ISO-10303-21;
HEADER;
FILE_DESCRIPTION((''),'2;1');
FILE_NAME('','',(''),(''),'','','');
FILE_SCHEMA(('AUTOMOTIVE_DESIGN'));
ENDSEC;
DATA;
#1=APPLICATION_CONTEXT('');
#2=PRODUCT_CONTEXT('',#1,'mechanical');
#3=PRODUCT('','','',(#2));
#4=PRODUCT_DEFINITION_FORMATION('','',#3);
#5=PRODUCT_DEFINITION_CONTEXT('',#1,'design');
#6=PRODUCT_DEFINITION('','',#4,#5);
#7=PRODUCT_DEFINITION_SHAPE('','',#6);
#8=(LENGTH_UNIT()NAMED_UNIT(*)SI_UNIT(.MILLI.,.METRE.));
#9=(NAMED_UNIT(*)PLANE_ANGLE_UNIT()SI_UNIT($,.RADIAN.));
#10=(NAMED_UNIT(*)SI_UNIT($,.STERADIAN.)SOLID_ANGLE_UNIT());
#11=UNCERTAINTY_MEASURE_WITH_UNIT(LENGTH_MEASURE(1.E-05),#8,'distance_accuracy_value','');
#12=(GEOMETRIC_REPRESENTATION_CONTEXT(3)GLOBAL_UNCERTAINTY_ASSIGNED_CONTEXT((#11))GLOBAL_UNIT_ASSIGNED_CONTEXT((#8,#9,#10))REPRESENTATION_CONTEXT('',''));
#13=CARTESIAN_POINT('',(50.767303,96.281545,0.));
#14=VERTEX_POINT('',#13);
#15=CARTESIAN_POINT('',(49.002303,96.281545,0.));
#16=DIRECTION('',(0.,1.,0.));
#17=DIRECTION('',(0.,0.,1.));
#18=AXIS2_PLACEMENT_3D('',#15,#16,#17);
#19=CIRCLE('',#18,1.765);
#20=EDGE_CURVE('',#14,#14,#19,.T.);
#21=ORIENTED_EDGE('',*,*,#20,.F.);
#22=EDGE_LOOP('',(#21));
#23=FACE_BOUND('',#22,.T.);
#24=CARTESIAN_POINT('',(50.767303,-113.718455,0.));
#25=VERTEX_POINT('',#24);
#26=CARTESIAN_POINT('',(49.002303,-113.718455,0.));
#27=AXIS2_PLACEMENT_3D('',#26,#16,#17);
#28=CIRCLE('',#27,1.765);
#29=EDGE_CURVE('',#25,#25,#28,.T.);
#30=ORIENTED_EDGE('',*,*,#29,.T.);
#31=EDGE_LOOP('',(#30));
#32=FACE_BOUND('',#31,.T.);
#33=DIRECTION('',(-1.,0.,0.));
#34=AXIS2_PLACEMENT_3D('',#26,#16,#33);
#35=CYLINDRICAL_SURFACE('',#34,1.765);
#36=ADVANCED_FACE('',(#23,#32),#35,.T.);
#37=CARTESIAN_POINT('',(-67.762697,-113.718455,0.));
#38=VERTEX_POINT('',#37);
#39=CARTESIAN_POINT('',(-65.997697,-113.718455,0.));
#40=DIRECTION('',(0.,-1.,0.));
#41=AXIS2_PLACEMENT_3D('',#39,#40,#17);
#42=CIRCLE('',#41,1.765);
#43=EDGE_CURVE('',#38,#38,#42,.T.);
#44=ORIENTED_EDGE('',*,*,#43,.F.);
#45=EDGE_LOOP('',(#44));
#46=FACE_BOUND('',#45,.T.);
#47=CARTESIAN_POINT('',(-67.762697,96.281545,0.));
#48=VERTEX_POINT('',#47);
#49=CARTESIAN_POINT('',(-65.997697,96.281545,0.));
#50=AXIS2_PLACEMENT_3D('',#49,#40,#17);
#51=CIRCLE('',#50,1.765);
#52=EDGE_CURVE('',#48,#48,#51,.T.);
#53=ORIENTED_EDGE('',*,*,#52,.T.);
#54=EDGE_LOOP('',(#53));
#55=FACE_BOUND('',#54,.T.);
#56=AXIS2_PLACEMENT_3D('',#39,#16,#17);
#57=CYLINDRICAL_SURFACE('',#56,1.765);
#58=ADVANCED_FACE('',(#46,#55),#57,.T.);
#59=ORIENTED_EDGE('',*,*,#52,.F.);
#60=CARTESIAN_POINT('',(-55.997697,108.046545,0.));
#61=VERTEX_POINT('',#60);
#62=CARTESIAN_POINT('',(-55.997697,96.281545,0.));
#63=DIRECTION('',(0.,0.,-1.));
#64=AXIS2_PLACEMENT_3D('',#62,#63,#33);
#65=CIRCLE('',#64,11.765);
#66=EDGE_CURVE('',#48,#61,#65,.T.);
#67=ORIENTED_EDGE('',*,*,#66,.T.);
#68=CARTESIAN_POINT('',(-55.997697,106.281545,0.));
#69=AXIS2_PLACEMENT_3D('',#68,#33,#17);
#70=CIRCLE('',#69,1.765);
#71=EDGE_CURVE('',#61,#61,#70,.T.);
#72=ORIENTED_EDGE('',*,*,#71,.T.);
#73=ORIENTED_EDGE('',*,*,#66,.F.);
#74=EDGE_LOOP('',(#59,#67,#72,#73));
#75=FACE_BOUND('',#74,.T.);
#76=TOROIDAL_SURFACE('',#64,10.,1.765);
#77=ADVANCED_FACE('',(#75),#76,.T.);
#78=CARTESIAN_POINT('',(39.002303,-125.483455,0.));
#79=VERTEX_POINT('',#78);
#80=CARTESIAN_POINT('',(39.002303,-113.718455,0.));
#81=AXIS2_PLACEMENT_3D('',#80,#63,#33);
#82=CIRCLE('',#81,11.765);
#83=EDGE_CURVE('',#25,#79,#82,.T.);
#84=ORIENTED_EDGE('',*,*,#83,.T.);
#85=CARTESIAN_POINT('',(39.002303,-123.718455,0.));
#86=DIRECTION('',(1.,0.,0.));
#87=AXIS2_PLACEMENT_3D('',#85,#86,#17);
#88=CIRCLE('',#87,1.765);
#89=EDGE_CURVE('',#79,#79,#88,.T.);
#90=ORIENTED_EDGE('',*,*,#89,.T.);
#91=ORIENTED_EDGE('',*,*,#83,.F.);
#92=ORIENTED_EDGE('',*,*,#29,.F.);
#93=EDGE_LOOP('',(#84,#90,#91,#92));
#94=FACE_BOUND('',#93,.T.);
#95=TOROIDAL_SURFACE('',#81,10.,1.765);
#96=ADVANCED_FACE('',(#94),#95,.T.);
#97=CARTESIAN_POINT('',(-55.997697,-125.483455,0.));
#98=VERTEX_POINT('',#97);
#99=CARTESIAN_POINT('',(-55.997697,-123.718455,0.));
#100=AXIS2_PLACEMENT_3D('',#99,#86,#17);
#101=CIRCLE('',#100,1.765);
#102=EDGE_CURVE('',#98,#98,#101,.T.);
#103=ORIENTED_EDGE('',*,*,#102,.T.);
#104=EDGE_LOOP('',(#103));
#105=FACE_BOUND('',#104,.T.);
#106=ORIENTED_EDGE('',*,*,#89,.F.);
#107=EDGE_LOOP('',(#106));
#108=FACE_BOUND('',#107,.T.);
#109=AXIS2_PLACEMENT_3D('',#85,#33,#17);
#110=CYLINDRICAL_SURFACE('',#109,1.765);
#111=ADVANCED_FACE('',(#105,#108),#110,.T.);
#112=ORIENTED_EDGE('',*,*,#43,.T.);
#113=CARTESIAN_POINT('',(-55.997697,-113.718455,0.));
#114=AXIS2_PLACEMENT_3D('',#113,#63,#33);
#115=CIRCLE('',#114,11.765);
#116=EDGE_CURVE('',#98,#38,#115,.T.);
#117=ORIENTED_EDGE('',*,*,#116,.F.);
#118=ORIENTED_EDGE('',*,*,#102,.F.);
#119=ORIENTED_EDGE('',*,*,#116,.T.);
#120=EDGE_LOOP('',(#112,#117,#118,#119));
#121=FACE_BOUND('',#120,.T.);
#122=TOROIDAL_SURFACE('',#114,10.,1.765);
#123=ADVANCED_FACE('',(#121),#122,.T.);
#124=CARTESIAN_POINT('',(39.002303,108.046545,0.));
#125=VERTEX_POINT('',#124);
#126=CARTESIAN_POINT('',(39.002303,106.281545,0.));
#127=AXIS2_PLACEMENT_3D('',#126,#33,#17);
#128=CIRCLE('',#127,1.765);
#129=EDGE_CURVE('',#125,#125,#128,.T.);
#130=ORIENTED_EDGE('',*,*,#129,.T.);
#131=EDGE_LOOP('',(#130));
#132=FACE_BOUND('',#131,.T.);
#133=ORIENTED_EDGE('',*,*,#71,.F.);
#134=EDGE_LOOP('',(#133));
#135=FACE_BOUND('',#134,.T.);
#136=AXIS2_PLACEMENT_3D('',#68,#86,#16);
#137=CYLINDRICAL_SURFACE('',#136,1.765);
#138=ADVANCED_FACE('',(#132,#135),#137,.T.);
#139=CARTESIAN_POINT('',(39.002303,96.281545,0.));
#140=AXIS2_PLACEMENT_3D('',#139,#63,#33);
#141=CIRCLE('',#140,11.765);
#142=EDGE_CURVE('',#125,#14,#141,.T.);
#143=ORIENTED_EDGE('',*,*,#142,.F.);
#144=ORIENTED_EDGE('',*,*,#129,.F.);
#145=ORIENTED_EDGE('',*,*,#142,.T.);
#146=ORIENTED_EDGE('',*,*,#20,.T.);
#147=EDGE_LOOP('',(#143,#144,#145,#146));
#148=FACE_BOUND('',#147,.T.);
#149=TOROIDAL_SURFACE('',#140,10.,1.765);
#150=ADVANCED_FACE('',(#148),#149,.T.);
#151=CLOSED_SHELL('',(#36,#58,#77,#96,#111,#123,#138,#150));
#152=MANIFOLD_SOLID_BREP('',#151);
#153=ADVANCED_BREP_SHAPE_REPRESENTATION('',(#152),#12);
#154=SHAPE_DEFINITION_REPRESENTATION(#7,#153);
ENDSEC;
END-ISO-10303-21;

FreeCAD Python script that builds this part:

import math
import FreeCAD as App
import Part
import Sketcher
Q = App.Units.Quantity

doc = App.newDocument("Part")
body = doc.addObject("PartDesign::Body", "Body")

# Sketch on XZ plane
sketch1 = body.newObject("Sketcher::SketchObject", "Sketch")
sketch1.AttachmentSupport = (doc.getObject("XZ_Plane"), [""])
sketch1.MapMode = "FlatFace"
sketch1.addGeometry(Part.Circle(App.Vector(49.002303, 0, 0), App.Vector(0, 0, 1), 1.765), False)
sketch1.addConstraint(Sketcher.Constraint("PointOnObject", 0, 3, -1))
sketch1.addConstraint(Sketcher.Constraint("Diameter", 0, Q("3.53 mm")))
sketch1.addConstraint(Sketcher.Constraint("DistanceX", -1, 1, 0, 3, Q("49.002303 mm")))

# Sketch on XY plane
sketch2 = body.newObject("Sketcher::SketchObject", "Sketch001")
sketch2.AttachmentSupport = (doc.getObject("XY_Plane"), [""])
sketch2.MapMode = "FlatFace"
sketch2.addGeometry(Part.LineSegment(App.Vector(-55.997697, -123.718455, 0), App.Vector(39.002303, -123.718455, 0)), False)
sketch2.addGeometry(Part.ArcOfCircle(Part.Circle(App.Vector(39.002303, -113.718455, 0), App.Vector(0, 0, 1), 10), math.radians(-90), math.radians(0)), False)
sketch2.addGeometry(Part.LineSegment(App.Vector(49.002303, -113.718455, 0), App.Vector(49.002303, 96.281545, 0)), False)
sketch2.addGeometry(Part.ArcOfCircle(Part.Circle(App.Vector(39.002303, 96.281545, 0), App.Vector(0, 0, 1), 10), math.radians(0), math.radians(90)), False)
sketch2.addGeometry(Part.LineSegment(App.Vector(39.002303, 106.281545, 0), App.Vector(-55.997697, 106.281545, 0)), False)
sketch2.addGeometry(Part.ArcOfCircle(Part.Circle(App.Vector(-55.997697, 96.281545, 0), App.Vector(0, 0, 1), 10), math.radians(90), math.radians(180)), False)
sketch2.addGeometry(Part.LineSegment(App.Vector(-65.997697, 96.281545, 0), App.Vector(-65.997697, -113.718455, 0)), False)
sketch2.addGeometry(Part.ArcOfCircle(Part.Circle(App.Vector(-55.997697, -113.718455, 0), App.Vector(0, 0, 1), 10), math.radians(180), math.radians(270)), False)
sketch2.addConstraint(Sketcher.Constraint("Tangent", 0, 2, 1, 1))
sketch2.addConstraint(Sketcher.Constraint("Tangent", 1, 2, 2, 1))
sketch2.addConstraint(Sketcher.Constraint("Tangent", 2, 2, 3, 1))
sketch2.addConstraint(Sketcher.Constraint("Tangent", 3, 2, 4, 1))
sketch2.addConstraint(Sketcher.Constraint("Tangent", 4, 2, 5, 1))
sketch2.addConstraint(Sketcher.Constraint("Tangent", 5, 2, 6, 1))
sketch2.addConstraint(Sketcher.Constraint("Tangent", 6, 2, 7, 1))
sketch2.addConstraint(Sketcher.Constraint("Tangent", 7, 2, 0, 1))
sketch2.addConstraint(Sketcher.Constraint("Horizontal", 0))
sketch2.addConstraint(Sketcher.Constraint("Vertical", 2))
sketch2.addConstraint(Sketcher.Constraint("Horizontal", 4))
sketch2.addConstraint(Sketcher.Constraint("Vertical", 6))
sketch2.addConstraint(Sketcher.Constraint("Equal", 1, 3))
sketch2.addConstraint(Sketcher.Constraint("Equal", 3, 5))
sketch2.addConstraint(Sketcher.Constraint("Equal", 5, 7))
sketch2.addConstraint(Sketcher.Constraint("Radius", 1, Q("10 mm")))
sketch2.addConstraint(Sketcher.Constraint("DistanceX", 0, 1, 0, 2, Q("95 mm")))
sketch2.addConstraint(Sketcher.Constraint("DistanceY", 2, 1, 2, 2, Q("210 mm")))
sketch2.addConstraint(Sketcher.Constraint("DistanceX", -1, 1, 1, 3, Q("39.002303 mm")))
sketch2.addConstraint(Sketcher.Constraint("DistanceY", 1, 3, -1, 1, Q("113.718455 mm")))
doc.recompute()

additivepipe = body.newObject("PartDesign::AdditivePipe", "AdditivePipe")
additivepipe.Profile = sketch1
additivepipe.Spine = (sketch2, ["Edge1", "Edge2", "Edge3", "Edge4", "Edge5", "Edge6", "Edge7", "Edge8"])

doc.recompute()
